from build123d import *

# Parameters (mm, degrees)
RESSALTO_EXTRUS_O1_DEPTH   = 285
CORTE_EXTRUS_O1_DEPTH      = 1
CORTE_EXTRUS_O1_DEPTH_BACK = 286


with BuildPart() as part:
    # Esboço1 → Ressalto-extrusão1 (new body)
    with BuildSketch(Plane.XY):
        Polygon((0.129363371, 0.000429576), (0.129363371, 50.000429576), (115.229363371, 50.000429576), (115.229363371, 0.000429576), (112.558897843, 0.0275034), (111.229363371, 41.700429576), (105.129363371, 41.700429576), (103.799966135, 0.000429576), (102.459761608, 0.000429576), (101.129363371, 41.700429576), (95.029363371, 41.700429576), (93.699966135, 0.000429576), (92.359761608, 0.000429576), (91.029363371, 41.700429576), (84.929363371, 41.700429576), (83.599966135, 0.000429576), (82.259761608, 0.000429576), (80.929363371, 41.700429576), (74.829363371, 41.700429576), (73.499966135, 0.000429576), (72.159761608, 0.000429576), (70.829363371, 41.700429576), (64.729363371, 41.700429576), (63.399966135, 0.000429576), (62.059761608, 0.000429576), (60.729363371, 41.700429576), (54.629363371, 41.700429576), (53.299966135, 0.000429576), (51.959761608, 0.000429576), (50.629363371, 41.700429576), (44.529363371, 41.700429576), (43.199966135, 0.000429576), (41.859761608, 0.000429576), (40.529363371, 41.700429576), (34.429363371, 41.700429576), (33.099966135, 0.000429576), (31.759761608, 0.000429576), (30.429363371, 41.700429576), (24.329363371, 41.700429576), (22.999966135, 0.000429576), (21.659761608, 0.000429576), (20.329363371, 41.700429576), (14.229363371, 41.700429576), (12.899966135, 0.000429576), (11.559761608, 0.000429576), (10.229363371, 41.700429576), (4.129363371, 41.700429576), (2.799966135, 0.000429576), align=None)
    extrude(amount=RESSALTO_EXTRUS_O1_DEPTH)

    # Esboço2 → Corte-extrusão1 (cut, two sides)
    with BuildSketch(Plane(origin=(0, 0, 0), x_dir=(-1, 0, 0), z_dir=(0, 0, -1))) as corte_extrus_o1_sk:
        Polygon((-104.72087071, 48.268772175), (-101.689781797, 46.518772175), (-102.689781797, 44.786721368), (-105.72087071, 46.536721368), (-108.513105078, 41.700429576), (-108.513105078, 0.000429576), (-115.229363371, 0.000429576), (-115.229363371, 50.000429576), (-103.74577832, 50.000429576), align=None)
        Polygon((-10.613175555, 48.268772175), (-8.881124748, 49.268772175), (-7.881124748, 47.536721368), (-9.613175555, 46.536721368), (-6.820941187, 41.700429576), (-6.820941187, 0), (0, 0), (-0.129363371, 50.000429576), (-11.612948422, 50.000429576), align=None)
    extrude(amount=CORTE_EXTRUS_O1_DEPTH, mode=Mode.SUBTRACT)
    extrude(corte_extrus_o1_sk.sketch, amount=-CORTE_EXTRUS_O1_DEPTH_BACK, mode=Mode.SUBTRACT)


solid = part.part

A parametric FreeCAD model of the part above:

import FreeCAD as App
import Part
import Sketcher
from FreeCAD import Vector
Q = App.Units.Quantity


def add_polygon(sketch, points):
    """Adds a closed chain of lines whose ends are joined by coincident constraints."""
    first, n = sketch.GeometryCount, len(points)
    for a, b in zip(points, points[1:] + points[:1]):
        sketch.addGeometry(Part.LineSegment(App.Vector(*a, 0), App.Vector(*b, 0)), False)
    for i in range(n):
        sketch.addConstraint(Sketcher.Constraint("Coincident", first + i, 2, first + (i + 1) % n, 1))

doc = App.newDocument("Part")
body = doc.addObject("PartDesign::Body", "Body")

# Sketch on XY plane
sketch1 = doc.addObject("Sketcher::SketchObject", "Sketch")
body.addObject(sketch1)
sketch1.AttachmentSupport = (doc.XY_Plane, [""])
sketch1.MapMode = "FlatFace"
add_polygon(sketch1, [(0.129363, 50.00043), (0.129363, 0.00043), (2.799966, 0.00043), (4.129363, 41.70043), (10.229363, 41.70043), (11.559762, 0.00043), (12.899966, 0.00043), (14.229363, 41.70043), (20.329363, 41.70043), (21.659762, 0.00043), (22.999966, 0.00043), (24.329363, 41.70043), (30.429363, 41.70043), (31.759762, 0.00043), (33.099966, 0.00043), (34.429363, 41.70043), (40.529363, 41.70043), (41.859762, 0.00043), (43.199966, 0.00043), (44.529363, 41.70043), (50.629363, 41.70043), (51.959762, 0.00043), (53.299966, 0.00043), (54.629363, 41.70043), (60.729363, 41.70043), (62.059762, 0.00043), (63.399966, 0.00043), (64.729363, 41.70043), (70.829363, 41.70043), (72.159762, 0.00043), (73.499966, 0.00043), (74.829363, 41.70043), (80.929363, 41.70043), (82.259762, 0.00043), (83.599966, 0.00043), (84.929363, 41.70043), (91.029363, 41.70043), (92.359762, 0.00043), (93.699966, 0.00043), (95.029363, 41.70043), (101.129363, 41.70043), (102.459762, 0.00043), (103.799966, 0.00043), (105.129363, 41.70043), (111.229363, 41.70043), (112.558898, 0.027503), (115.229363, 0.00043), (115.229363, 50.00043)])  # lines 0-47
sketch1.addConstraint(Sketcher.Constraint("Vertical", 0))
sketch1.addConstraint(Sketcher.Constraint("Horizontal", 1))
sketch1.addConstraint(Sketcher.Constraint("Horizontal", 3))
sketch1.addConstraint(Sketcher.Constraint("Horizontal", 5))
sketch1.addConstraint(Sketcher.Constraint("Horizontal", 7))
sketch1.addConstraint(Sketcher.Constraint("Horizontal", 9))
sketch1.addConstraint(Sketcher.Constraint("Horizontal", 11))
sketch1.addConstraint(Sketcher.Constraint("Horizontal", 13))
sketch1.addConstraint(Sketcher.Constraint("Horizontal", 15))
sketch1.addConstraint(Sketcher.Constraint("Horizontal", 17))
sketch1.addConstraint(Sketcher.Constraint("Horizontal", 19))
sketch1.addConstraint(Sketcher.Constraint("Horizontal", 21))
sketch1.addConstraint(Sketcher.Constraint("Horizontal", 23))
sketch1.addConstraint(Sketcher.Constraint("Horizontal", 25))
sketch1.addConstraint(Sketcher.Constraint("Horizontal", 27))
sketch1.addConstraint(Sketcher.Constraint("Horizontal", 29))
sketch1.addConstraint(Sketcher.Constraint("Horizontal", 31))
sketch1.addConstraint(Sketcher.Constraint("Horizontal", 33))
sketch1.addConstraint(Sketcher.Constraint("Horizontal", 35))
sketch1.addConstraint(Sketcher.Constraint("Horizontal", 37))
sketch1.addConstraint(Sketcher.Constraint("Horizontal", 39))
sketch1.addConstraint(Sketcher.Constraint("Horizontal", 41))
sketch1.addConstraint(Sketcher.Constraint("Horizontal", 43))
sketch1.addConstraint(Sketcher.Constraint("Vertical", 46))
sketch1.addConstraint(Sketcher.Constraint("Horizontal", 47))
sketch1.addConstraint(Sketcher.Constraint("Parallel", 2, 6))
sketch1.addConstraint(Sketcher.Constraint("Parallel", 4, 8))
sketch1.addConstraint(Sketcher.Constraint("Parallel", 6, 10))
sketch1.addConstraint(Sketcher.Constraint("Parallel", 8, 12))
sketch1.addConstraint(Sketcher.Constraint("Parallel", 10, 14))
sketch1.addConstraint(Sketcher.Constraint("Parallel", 12, 16))
sketch1.addConstraint(Sketcher.Constraint("Parallel", 14, 18))
sketch1.addConstraint(Sketcher.Constraint("Parallel", 16, 20))
sketch1.addConstraint(Sketcher.Constraint("Parallel", 18, 22))
sketch1.addConstraint(Sketcher.Constraint("Parallel", 20, 24))
sketch1.addConstraint(Sketcher.Constraint("Parallel", 22, 26))
sketch1.addConstraint(Sketcher.Constraint("Parallel", 24, 28))
sketch1.addConstraint(Sketcher.Constraint("Parallel", 26, 30))
sketch1.addConstraint(Sketcher.Constraint("Parallel", 28, 32))
sketch1.addConstraint(Sketcher.Constraint("Parallel", 30, 34))
sketch1.addConstraint(Sketcher.Constraint("Parallel", 32, 36))
sketch1.addConstraint(Sketcher.Constraint("Parallel", 34, 38))
sketch1.addConstraint(Sketcher.Constraint("Parallel", 36, 40))
sketch1.addConstraint(Sketcher.Constraint("Parallel", 38, 42))
sketch1.addConstraint(Sketcher.Constraint("Parallel", 40, 44))
sketch1.addConstraint(Sketcher.Constraint("Horizontal", 1, 2, 4, 2))
sketch1.addConstraint(Sketcher.Constraint("Horizontal", 3, 2, 6, 2))
sketch1.addConstraint(Sketcher.Constraint("Horizontal", 5, 2, 8, 2))
sketch1.addConstraint(Sketcher.Constraint("Horizontal", 7, 2, 10, 2))
sketch1.addConstraint(Sketcher.Constraint("Horizontal", 9, 2, 12, 2))
sketch1.addConstraint(Sketcher.Constraint("Horizontal", 11, 2, 14, 2))
sketch1.addConstraint(Sketcher.Constraint("Horizontal", 13, 2, 16, 2))
sketch1.addConstraint(Sketcher.Constraint("Horizontal", 15, 2, 18, 2))
sketch1.addConstraint(Sketcher.Constraint("Horizontal", 17, 2, 20, 2))
sketch1.addConstraint(Sketcher.Constraint("Horizontal", 19, 2, 22, 2))
sketch1.addConstraint(Sketcher.Constraint("Horizontal", 21, 2, 24, 2))
sketch1.addConstraint(Sketcher.Constraint("Horizontal", 23, 2, 26, 2))
sketch1.addConstraint(Sketcher.Constraint("Horizontal", 25, 2, 28, 2))
sketch1.addConstraint(Sketcher.Constraint("Horizontal", 27, 2, 30, 2))
sketch1.addConstraint(Sketcher.Constraint("Horizontal", 29, 2, 32, 2))
sketch1.addConstraint(Sketcher.Constraint("Horizontal", 31, 2, 34, 2))
sketch1.addConstraint(Sketcher.Constraint("Horizontal", 33, 2, 36, 2))
sketch1.addConstraint(Sketcher.Constraint("Horizontal", 35, 2, 38, 2))
sketch1.addConstraint(Sketcher.Constraint("Horizontal", 37, 2, 40, 2))
sketch1.addConstraint(Sketcher.Constraint("Horizontal", 39, 2, 42, 2))
sketch1.addConstraint(Sketcher.Constraint("Horizontal", 41, 2, 45, 2))
sketch1.addConstraint(Sketcher.Constraint("Equal", 3, 7))
sketch1.addConstraint(Sketcher.Constraint("Equal", 5, 9))
sketch1.addConstraint(Sketcher.Constraint("Equal", 7, 11))
sketch1.addConstraint(Sketcher.Constraint("Equal", 9, 13))
sketch1.addConstraint(Sketcher.Constraint("Equal", 11, 15))
sketch1.addConstraint(Sketcher.Constraint("Equal", 13, 17))
sketch1.addConstraint(Sketcher.Constraint("Equal", 15, 19))
sketch1.addConstraint(Sketcher.Constraint("Equal", 17, 21))
sketch1.addConstraint(Sketcher.Constraint("Equal", 19, 23))
sketch1.addConstraint(Sketcher.Constraint("Equal", 21, 25))
sketch1.addConstraint(Sketcher.Constraint("Equal", 23, 27))
sketch1.addConstraint(Sketcher.Constraint("Equal", 25, 29))
sketch1.addConstraint(Sketcher.Constraint("Equal", 27, 31))
sketch1.addConstraint(Sketcher.Constraint("Equal", 29, 33))
sketch1.addConstraint(Sketcher.Constraint("Equal", 31, 35))
sketch1.addConstraint(Sketcher.Constraint("Equal", 33, 37))
sketch1.addConstraint(Sketcher.Constraint("Equal", 35, 39))
sketch1.addConstraint(Sketcher.Constraint("Equal", 37, 41))
sketch1.addConstraint(Sketcher.Constraint("Equal", 39, 43))
sketch1.addConstraint(Sketcher.Constraint("DistanceY", 0, 2, 0, 1, 50.0))
sketch1.addConstraint(Sketcher.Constraint("DistanceX", 3, 1, 3, 2, 6.1))
sketch1.addConstraint(Sketcher.Constraint("DistanceX", 47, 2, 47, 1, 115.1))
sketch1.addConstraint(Sketcher.Constraint("DistanceX", 0, 2, 2, 2, 4.0))
sketch1.addConstraint(Sketcher.Constraint("DistanceX", 3, 2, 6, 2, 4.0))
sketch1.addConstraint(Sketcher.Constraint("DistanceY", 1, 2, 2, 2, 41.7))
sketch1.addConstraint(Sketcher.Constraint("DistanceX", 0, 2, 4, 2, 11.430398))
sketch1.addConstraint(Sketcher.Constraint("Distance", 44, 41.69413))
sketch1.addConstraint(Sketcher.Constraint("DistanceX", 1, 1, 1, 2, 2.670603))
sketch1.addConstraint(Sketcher.Constraint("DistanceY", -1, 1, 0, 2, 0.00043))
sketch1.addConstraint(Sketcher.Constraint("DistanceX", -1, 1, 4, 2, 11.559762))
pad1 = doc.addObject("PartDesign::Pad", "Pad")
body.addObject(pad1)
pad1.Profile = sketch1
pad1.Length = 285

# Sketch on XY plane
sketch2 = doc.addObject("Sketcher::SketchObject", "Sketch001")
body.addObject(sketch2)
sketch2.AttachmentSupport = (doc.XY_Plane, [""])
sketch2.MapMode = "FlatFace"
add_polygon(sketch2, [(101.689782, 46.518772), (104.720871, 48.268772), (103.745778, 50.00043), (115.229363, 50.00043), (115.229363, 0.00043), (108.513105, 0.00043), (108.513105, 41.70043), (105.720871, 46.536721), (102.689782, 44.786721)])  # lines 0-8
add_polygon(sketch2, [(10.613176, 48.268772), (8.881125, 49.268772), (7.881125, 47.536721), (9.613176, 46.536721), (6.820941, 41.70043), (6.820941, 0), (0, 0), (0.129363, 50.00043), (11.612948, 50.00043)])  # lines 9-17
sketch2.addConstraint(Sketcher.Constraint("Horizontal", 2))
sketch2.addConstraint(Sketcher.Constraint("Vertical", 3))
sketch2.addConstraint(Sketcher.Constraint("Horizontal", 4))
sketch2.addConstraint(Sketcher.Constraint("Vertical", 5))
sketch2.addConstraint(Sketcher.Constraint("Vertical", 13))
sketch2.addConstraint(Sketcher.Constraint("Horizontal", 14))
sketch2.addConstraint(Sketcher.Constraint("Horizontal", 16))
sketch2.addConstraint(Sketcher.Constraint("Coincident", 14, 2, -1, 1))
sketch2.addConstraint(Sketcher.Constraint("Perpendicular", 0, 6))
sketch2.addConstraint(Sketcher.Constraint("Perpendicular", 6, 7))
sketch2.addConstraint(Sketcher.Constraint("Perpendicular", 7, 8))
sketch2.addConstraint(Sketcher.Constraint("Perpendicular", 9, 10))
sketch2.addConstraint(Sketcher.Constraint("Perpendicular", 10, 11))
sketch2.addConstraint(Sketcher.Constraint("Perpendicular", 11, 12))
sketch2.addConstraint(Sketcher.Constraint("Parallel", 12, 17))
sketch2.addConstraint(Sketcher.Constraint("Horizontal", 6, 2, 11, 2))
sketch2.addConstraint(Sketcher.Constraint("Horizontal", 5, 2, 12, 2))
sketch2.addConstraint(Sketcher.Constraint("Horizontal", 2, 2, 15, 2))
sketch2.addConstraint(Sketcher.Constraint("Horizontal", 0, 2, 17, 2))
sketch2.addConstraint(Sketcher.Constraint("Equal", 2, 16))
sketch2.addConstraint(Sketcher.Constraint("Equal", 0, 7))
sketch2.addConstraint(Sketcher.Constraint("Equal", 8, 9))
sketch2.addConstraint(Sketcher.Constraint("Equal", 9, 10))
sketch2.addConstraint(Sketcher.Constraint("Equal", 10, 11))
sketch2.addConstraint(Sketcher.Constraint("DistanceY", 3, 2, 3, 1, 50.0))
sketch2.addConstraint(Sketcher.Constraint("Angle", 0, Q("30 deg")))
sketch2.addConstraint(Sketcher.Constraint("Distance", 8, 2.0))
sketch2.addConstraint(Sketcher.Constraint("DistanceY", 5, 1, 5, 2, 41.7))
sketch2.addConstraint(Sketcher.Constraint("Distance", 0, 3.5))
sketch2.addConstraint(Sketcher.Constraint("DistanceX", 4, 2, 4, 1, 6.716258))
sketch2.addConstraint(Sketcher.Constraint("DistanceX", 14, 2, 14, 1, 6.820941))
sketch2.addConstraint(Sketcher.Constraint("DistanceY", 13, 2, 13, 1, 41.70043))
sketch2.addConstraint(Sketcher.Constraint("Distance", 1, 1.98732))
sketch2.addConstraint(Sketcher.Constraint("Distance", 6, 5.584469))
sketch2.addConstraint(Sketcher.Constraint("DistanceX", -1, 1, 0, 2, 104.720871))
pocket1 = doc.addObject("PartDesign::Pocket", "Pocket")
body.addObject(pocket1)
pocket1.Profile = sketch2
pocket1.Type = "ThroughAll"
pocket1.Midplane = True

doc.recompute()
